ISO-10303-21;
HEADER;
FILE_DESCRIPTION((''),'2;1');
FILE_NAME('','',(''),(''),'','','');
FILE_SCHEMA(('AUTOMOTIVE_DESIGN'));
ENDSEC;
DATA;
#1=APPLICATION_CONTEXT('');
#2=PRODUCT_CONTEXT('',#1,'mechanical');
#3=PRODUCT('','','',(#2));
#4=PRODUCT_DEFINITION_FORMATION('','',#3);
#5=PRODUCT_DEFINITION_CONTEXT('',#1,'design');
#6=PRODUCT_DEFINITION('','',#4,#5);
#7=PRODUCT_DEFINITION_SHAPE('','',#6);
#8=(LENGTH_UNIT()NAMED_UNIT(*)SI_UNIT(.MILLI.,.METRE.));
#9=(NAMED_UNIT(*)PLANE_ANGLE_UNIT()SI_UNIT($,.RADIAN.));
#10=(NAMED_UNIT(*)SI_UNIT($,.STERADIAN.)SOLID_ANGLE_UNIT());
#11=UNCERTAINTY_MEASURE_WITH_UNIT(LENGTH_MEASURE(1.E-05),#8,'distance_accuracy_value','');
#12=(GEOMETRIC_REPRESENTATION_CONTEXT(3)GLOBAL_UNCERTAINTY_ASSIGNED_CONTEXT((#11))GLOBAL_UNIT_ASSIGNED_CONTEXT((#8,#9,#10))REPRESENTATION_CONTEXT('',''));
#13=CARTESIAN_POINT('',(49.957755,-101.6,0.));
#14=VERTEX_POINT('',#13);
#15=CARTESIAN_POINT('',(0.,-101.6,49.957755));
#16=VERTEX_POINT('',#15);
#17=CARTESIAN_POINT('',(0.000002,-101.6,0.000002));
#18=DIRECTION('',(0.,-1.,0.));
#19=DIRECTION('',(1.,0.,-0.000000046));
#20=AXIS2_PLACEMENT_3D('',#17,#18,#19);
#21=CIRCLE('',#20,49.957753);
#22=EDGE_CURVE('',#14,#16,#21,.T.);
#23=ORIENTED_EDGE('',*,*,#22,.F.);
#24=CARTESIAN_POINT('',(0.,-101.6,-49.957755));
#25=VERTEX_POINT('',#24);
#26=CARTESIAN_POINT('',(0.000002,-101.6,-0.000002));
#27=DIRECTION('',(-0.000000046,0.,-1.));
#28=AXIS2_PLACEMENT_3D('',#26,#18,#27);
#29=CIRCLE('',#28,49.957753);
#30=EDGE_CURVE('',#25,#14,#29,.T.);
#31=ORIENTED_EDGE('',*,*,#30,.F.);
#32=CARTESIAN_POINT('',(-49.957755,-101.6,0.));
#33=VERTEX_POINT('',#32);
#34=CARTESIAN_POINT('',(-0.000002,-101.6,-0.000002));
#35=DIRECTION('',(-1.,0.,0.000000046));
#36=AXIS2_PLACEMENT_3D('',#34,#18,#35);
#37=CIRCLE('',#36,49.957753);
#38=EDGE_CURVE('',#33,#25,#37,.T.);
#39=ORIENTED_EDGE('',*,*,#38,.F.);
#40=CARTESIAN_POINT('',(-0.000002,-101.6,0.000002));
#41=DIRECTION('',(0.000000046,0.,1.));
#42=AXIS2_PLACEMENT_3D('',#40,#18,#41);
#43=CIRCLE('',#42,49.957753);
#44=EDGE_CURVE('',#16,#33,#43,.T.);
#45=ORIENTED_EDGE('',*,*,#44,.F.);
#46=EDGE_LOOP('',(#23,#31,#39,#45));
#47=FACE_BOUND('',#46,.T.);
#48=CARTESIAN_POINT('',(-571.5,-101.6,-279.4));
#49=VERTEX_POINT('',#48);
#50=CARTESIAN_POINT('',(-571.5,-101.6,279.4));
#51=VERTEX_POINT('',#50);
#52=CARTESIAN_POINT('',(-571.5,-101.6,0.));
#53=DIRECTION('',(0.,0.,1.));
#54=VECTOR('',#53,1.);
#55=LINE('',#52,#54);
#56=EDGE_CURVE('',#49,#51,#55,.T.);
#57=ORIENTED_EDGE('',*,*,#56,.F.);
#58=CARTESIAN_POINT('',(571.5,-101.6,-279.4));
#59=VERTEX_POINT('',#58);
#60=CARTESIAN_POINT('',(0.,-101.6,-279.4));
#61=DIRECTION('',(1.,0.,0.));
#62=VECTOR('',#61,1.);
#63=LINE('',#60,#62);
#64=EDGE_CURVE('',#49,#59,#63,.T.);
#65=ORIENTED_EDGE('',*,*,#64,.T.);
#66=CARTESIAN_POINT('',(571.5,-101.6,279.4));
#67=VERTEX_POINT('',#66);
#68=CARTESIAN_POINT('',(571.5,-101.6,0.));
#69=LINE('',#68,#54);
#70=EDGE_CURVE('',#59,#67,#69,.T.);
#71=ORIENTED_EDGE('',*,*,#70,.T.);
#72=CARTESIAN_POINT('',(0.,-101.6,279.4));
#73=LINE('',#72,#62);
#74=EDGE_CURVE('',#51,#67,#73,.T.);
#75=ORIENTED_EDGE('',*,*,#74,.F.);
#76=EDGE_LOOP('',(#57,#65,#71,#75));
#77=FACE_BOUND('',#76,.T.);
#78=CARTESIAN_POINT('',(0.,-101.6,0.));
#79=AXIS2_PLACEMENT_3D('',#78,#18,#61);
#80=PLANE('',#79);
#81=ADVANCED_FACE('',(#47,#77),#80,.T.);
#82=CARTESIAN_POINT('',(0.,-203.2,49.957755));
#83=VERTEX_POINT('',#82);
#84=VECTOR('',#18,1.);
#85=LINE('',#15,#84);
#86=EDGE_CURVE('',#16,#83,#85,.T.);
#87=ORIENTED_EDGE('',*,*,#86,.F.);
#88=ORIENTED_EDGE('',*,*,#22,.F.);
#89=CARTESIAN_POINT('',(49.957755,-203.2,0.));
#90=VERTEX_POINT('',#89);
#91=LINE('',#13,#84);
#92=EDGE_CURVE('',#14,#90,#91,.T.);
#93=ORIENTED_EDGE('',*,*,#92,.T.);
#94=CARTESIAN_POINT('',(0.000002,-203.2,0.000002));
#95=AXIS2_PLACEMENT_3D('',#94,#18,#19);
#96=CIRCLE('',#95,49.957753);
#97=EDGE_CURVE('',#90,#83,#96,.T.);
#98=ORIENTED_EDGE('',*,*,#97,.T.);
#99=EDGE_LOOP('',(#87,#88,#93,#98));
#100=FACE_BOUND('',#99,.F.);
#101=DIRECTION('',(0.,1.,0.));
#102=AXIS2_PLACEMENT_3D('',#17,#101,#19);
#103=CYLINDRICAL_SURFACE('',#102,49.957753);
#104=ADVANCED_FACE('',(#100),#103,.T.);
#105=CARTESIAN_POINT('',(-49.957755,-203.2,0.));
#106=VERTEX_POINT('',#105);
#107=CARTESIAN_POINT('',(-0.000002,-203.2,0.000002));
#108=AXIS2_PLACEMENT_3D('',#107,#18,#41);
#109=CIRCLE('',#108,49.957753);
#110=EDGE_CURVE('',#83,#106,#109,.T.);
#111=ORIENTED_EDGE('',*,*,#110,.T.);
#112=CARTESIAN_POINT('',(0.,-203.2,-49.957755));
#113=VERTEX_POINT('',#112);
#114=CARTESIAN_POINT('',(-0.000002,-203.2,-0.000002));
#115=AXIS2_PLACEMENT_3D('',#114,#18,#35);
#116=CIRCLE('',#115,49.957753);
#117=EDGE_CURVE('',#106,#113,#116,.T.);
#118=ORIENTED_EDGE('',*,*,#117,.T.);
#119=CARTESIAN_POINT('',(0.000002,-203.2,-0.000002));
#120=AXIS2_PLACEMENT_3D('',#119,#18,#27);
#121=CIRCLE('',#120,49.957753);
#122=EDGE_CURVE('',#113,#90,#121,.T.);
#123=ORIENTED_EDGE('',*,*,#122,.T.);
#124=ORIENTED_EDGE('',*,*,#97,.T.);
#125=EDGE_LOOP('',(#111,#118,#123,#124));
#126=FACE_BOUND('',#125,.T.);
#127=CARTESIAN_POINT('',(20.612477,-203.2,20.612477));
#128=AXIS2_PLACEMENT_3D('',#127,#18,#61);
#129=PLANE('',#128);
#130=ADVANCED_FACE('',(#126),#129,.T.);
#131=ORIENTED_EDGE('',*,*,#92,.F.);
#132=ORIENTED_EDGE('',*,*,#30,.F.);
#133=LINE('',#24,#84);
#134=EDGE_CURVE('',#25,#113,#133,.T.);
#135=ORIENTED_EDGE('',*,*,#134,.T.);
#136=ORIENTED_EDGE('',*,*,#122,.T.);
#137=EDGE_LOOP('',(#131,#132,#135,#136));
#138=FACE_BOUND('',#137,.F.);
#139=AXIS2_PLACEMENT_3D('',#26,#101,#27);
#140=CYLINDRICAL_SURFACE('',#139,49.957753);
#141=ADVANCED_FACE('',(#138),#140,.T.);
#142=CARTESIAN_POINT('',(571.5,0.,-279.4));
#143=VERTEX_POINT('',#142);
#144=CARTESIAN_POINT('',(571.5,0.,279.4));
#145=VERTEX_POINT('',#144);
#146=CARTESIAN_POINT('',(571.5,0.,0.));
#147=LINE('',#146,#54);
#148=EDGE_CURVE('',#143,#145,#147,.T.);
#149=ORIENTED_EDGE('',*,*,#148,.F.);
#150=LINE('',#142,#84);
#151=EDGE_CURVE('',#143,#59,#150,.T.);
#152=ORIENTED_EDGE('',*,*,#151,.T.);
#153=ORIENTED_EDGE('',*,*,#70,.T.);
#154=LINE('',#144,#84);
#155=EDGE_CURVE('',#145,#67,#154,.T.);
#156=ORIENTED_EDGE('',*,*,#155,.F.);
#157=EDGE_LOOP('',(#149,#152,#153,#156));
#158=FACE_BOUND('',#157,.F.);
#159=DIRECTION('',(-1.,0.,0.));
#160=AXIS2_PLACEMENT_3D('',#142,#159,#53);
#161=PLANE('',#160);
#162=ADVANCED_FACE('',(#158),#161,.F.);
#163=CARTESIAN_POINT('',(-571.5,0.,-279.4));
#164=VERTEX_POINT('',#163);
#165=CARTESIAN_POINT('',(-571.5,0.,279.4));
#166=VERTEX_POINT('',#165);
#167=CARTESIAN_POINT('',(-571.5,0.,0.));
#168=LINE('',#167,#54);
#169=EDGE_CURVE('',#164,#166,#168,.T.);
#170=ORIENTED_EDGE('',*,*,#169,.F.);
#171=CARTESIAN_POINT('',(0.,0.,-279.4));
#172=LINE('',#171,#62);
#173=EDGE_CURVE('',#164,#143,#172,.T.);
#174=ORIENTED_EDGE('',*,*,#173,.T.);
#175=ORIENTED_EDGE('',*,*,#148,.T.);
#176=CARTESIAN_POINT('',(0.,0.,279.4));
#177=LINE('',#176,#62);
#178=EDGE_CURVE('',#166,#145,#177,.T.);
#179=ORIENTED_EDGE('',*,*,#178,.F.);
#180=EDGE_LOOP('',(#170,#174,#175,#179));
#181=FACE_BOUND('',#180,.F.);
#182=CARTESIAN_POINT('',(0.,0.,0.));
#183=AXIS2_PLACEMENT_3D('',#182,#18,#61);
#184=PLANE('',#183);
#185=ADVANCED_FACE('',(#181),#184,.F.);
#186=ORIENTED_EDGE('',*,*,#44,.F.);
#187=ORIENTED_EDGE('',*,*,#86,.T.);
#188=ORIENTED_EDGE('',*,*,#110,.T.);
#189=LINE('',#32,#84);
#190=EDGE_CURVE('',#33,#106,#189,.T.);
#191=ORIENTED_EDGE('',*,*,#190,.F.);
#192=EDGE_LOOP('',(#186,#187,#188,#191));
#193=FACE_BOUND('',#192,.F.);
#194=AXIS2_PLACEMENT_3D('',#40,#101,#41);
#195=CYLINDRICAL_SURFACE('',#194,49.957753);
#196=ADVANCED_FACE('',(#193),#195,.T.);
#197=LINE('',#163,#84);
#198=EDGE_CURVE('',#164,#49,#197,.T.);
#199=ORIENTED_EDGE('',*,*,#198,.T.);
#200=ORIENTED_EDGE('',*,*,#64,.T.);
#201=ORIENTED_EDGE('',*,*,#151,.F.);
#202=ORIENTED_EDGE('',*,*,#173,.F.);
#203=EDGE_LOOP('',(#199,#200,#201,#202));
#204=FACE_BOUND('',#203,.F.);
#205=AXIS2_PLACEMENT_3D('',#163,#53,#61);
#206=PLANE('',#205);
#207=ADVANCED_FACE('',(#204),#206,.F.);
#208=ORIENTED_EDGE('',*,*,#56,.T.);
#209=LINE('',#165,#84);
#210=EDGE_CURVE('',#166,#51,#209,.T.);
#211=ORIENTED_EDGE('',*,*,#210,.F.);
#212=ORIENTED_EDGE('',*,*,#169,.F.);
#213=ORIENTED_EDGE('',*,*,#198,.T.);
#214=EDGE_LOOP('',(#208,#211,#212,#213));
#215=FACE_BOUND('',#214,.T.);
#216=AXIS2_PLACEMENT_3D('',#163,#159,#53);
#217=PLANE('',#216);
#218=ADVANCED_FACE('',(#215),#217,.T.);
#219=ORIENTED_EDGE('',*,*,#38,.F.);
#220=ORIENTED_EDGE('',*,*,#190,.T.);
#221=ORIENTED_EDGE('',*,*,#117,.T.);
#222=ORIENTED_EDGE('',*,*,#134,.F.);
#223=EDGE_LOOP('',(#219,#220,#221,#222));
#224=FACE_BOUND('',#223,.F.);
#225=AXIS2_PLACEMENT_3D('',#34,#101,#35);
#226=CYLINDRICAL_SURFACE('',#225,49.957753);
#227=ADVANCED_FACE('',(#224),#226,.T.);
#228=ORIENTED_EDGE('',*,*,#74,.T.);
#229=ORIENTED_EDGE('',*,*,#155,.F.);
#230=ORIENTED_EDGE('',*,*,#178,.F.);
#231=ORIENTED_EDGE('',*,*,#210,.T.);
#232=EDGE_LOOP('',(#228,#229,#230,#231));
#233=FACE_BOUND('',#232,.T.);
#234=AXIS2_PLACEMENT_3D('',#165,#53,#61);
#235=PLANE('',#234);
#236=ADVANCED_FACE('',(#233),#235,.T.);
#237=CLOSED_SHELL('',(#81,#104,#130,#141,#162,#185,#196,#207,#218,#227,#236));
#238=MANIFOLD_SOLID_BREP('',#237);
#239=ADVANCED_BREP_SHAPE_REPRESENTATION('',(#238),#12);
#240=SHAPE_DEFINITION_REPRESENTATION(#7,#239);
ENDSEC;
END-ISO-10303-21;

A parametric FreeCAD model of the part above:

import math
import FreeCAD as App
import Part
import Sketcher
from FreeCAD import Vector
Q = App.Units.Quantity

doc = App.newDocument("Part")
params = doc.addObject("Spreadsheet::Sheet", "Params")
for row, (alias, value) in enumerate([
    ("sketch1_width", "45 in"),
    ("sketch1_height", "22 in"),
    ("pad1_length", "4 in"),
    ("pad2_length", "4 in"),
], start=1):
    params.set(f"A{row}", alias)
    params.set(f"B{row}", "=" + value)
    params.setAlias(f"B{row}", alias)

body = doc.addObject("PartDesign::Body", "Body")

# Sketch on XZ plane
sketch1 = body.newObject("Sketcher::SketchObject", "Sketch")
sketch1.AttachmentSupport = (doc.getObject("XZ_Plane"), [""])
sketch1.MapMode = "FlatFace"
sketch1.addGeometry(Part.LineSegment(Vector(-572, 279, 0), Vector(-572, -279, 0)), False)
sketch1.addGeometry(Part.LineSegment(Vector(-572, -279, 0), Vector(572, -279, 0)), False)
sketch1.addGeometry(Part.LineSegment(Vector(572, -279, 0), Vector(572, 279, 0)), False)
sketch1.addGeometry(Part.LineSegment(Vector(572, 279, 0), Vector(-572, 279, 0)), False)
sketch1.addConstraint(Sketcher.Constraint("Coincident", 0, 2, 1, 1))
sketch1.addConstraint(Sketcher.Constraint("Coincident", 1, 2, 2, 1))
sketch1.addConstraint(Sketcher.Constraint("Coincident", 2, 2, 3, 1))
sketch1.addConstraint(Sketcher.Constraint("Coincident", 3, 2, 0, 1))
sketch1.addConstraint(Sketcher.Constraint("Vertical", 0))
sketch1.addConstraint(Sketcher.Constraint("Horizontal", 1))
sketch1.addConstraint(Sketcher.Constraint("Vertical", 2))
sketch1.addConstraint(Sketcher.Constraint("Horizontal", 3))
sketch1.addConstraint(Sketcher.Constraint("Symmetric", 0, 2, 2, 2, -1, 1))
sketch1.addConstraint(Sketcher.Constraint("DistanceX", 1, 1, 1, 2, Q("45 in")))
sketch1.addConstraint(Sketcher.Constraint("DistanceY", 0, 2, 0, 1, Q("22 in")))
sketch1.setExpression("Constraints[9]", "Params.sketch1_width")
sketch1.setExpression("Constraints[10]", "Params.sketch1_height")
pad1 = body.newObject("PartDesign::Pad", "Pad")
pad1.Profile = sketch1
pad1.setExpression("Length", "Params.pad1_length")

# Sketch on XZ plane
sketch2 = body.newObject("Sketcher::SketchObject", "Sketch001")
sketch2.AttachmentSupport = (doc.getObject("XZ_Plane"), [""])
sketch2.MapMode = "FlatFace"
sketch2.AttachmentOffset = App.Placement(Vector(0, 0, 4 * 25.4), App.Rotation())
sketch2.addGeometry(Part.ArcOfCircle(Part.Circle(Vector(0, 0, 0), Vector(0, 0, 1), 50), math.radians(0), math.radians(90)), False)
sketch2.addGeometry(Part.ArcOfCircle(Part.Circle(Vector(0, 0, 0), Vector(0, 0, 1), 50), math.radians(90), math.radians(180)), False)
sketch2.addGeometry(Part.ArcOfCircle(Part.Circle(Vector(0, 0, 0), Vector(0, 0, 1), 50), math.radians(180), math.radians(270)), False)
sketch2.addGeometry(Part.ArcOfCircle(Part.Circle(Vector(0, 0, 0), Vector(0, 0, 1), 50), math.radians(-90), math.radians(0)), False)
sketch2.addConstraint(Sketcher.Constraint("Tangent", 0, 2, 1, 1))
sketch2.addConstraint(Sketcher.Constraint("Tangent", 1, 2, 2, 1))
sketch2.addConstraint(Sketcher.Constraint("Tangent", 2, 2, 3, 1))
sketch2.addConstraint(Sketcher.Constraint("Tangent", 3, 2, 0, 1))
sketch2.addConstraint(Sketcher.Constraint("Coincident", 0, 3, -1, 1))
sketch2.addConstraint(Sketcher.Constraint("Equal", 0, 1))
sketch2.addConstraint(Sketcher.Constraint("PointOnObject", 0, 2, -2))
sketch2.addConstraint(Sketcher.Constraint("PointOnObject", 1, 2, -1))
sketch2.addConstraint(Sketcher.Constraint("PointOnObject", 2, 2, -2))
sketch2.addConstraint(Sketcher.Constraint("PointOnObject", 3, 2, -1))
sketch2.addConstraint(Sketcher.Constraint("Radius", 0, 49.957753))
pad2 = body.newObject("PartDesign::Pad", "Pad001")
pad2.Profile = sketch2
pad2.setExpression("Length", "Params.pad2_length")

doc.recompute()
